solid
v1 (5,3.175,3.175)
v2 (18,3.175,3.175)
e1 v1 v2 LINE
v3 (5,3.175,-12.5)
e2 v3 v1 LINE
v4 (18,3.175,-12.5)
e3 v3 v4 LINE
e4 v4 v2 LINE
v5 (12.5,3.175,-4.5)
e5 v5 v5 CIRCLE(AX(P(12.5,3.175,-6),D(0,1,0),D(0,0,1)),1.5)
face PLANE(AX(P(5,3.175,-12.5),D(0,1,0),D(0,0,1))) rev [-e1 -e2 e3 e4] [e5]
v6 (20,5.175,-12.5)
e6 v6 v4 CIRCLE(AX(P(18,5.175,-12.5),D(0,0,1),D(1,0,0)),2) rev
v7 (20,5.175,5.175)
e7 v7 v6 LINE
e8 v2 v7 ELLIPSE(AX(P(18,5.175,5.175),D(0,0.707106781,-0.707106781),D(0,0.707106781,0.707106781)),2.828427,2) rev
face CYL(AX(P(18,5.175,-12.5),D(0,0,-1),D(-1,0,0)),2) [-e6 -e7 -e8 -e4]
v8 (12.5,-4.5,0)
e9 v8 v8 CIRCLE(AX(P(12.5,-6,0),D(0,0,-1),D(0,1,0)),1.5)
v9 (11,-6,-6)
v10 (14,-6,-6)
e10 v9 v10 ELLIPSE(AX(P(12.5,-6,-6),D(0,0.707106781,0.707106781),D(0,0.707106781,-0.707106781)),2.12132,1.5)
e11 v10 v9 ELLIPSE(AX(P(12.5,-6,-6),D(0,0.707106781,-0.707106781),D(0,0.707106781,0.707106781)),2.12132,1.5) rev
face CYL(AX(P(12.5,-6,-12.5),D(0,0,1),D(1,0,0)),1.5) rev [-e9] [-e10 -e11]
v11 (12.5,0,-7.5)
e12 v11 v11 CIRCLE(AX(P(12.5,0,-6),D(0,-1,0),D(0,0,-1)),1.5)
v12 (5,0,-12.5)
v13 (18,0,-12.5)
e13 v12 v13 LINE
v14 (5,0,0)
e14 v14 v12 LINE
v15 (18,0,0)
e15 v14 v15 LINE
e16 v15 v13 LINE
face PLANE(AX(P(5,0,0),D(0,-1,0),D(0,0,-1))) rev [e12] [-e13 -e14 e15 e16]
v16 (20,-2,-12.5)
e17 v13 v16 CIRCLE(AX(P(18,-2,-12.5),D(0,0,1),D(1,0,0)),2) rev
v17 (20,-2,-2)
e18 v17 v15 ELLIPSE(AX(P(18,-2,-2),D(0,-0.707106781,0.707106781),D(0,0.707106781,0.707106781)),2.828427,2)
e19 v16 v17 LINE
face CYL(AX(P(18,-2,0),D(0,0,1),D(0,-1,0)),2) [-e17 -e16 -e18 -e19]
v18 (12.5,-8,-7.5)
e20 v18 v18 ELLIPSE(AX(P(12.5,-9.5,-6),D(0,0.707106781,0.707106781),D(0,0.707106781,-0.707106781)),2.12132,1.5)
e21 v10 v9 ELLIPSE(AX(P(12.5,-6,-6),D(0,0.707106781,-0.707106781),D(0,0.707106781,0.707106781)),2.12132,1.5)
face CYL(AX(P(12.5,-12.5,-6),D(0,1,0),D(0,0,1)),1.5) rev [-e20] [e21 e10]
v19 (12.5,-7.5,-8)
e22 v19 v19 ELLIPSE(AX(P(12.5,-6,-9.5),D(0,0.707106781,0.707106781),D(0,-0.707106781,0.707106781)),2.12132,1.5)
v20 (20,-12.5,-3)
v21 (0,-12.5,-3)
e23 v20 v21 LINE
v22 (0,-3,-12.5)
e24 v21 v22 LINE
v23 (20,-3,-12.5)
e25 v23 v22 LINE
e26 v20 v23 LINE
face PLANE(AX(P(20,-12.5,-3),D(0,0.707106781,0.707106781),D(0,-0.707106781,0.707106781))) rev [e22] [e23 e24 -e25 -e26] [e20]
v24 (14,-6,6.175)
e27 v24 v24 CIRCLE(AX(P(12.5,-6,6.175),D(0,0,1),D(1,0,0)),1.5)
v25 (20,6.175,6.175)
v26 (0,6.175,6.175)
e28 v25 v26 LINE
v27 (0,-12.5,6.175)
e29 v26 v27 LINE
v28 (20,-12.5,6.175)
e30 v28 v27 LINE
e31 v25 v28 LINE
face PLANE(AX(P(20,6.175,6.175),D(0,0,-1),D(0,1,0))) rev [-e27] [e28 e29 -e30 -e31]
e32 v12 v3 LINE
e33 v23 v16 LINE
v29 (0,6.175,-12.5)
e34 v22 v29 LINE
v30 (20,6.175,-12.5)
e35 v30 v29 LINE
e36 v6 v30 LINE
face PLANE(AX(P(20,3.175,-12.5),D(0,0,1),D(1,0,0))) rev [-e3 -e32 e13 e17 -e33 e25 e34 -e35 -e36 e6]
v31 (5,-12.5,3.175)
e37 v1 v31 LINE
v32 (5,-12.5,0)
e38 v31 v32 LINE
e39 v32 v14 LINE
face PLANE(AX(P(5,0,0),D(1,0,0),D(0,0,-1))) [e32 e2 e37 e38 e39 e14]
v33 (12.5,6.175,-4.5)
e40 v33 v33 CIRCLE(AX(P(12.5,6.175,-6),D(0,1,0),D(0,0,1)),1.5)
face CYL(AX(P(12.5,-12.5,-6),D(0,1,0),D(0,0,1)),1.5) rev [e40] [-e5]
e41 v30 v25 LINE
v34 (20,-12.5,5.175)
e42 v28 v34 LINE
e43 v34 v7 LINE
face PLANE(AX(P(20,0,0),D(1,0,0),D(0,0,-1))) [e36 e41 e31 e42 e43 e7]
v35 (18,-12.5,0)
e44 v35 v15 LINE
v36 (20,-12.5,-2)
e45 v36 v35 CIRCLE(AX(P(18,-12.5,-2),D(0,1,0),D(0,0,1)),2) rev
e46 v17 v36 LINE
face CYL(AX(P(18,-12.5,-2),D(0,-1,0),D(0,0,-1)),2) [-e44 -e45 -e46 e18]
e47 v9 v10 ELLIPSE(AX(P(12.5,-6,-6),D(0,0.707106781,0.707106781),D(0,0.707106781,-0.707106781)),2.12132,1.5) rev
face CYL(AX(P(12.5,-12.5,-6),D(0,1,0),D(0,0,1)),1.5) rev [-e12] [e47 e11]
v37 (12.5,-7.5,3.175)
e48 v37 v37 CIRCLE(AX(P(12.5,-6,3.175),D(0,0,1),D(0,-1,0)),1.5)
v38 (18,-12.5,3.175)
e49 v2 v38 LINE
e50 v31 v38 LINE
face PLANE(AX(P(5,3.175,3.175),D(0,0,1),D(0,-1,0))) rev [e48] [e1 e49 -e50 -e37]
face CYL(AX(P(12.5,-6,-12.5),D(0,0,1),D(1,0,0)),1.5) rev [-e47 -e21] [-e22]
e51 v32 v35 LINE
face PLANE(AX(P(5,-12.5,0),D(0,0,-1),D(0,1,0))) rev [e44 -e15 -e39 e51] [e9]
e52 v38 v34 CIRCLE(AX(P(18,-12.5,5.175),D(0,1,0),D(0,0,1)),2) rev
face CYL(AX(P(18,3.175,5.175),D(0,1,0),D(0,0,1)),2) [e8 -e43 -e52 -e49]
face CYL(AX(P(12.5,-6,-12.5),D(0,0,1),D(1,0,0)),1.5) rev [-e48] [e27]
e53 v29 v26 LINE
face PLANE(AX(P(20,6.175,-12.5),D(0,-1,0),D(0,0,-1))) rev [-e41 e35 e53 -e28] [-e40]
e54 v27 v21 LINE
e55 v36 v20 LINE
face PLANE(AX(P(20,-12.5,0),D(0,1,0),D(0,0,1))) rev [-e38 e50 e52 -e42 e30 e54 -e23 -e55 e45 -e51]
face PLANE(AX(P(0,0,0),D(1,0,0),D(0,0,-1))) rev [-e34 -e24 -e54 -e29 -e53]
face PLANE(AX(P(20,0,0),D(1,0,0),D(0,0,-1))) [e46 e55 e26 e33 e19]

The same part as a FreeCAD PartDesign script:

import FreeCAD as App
import Part
import Sketcher
from FreeCAD import Vector
Q = App.Units.Quantity


def edges_at(feature, points):
    """Names of the edges that pass closest to the given points."""
    edges = feature.Shape.Edges
    near = lambda p: min(range(len(edges)), key=lambda i: edges[i].distToShape(Part.Vertex(*p))[0])
    return sorted({f"Edge{near(p) + 1}" for p in points})

doc = App.newDocument("Part")
body = doc.addObject("PartDesign::Body", "Body")

sketch1 = body.newObject("Sketcher::SketchObject", "Sketch")
sketch1.AttachmentSupport = (doc.getObject("YZ_Plane"), [""])
sketch1.MapMode = "FlatFace"
sketch1.addGeometry(Part.LineSegment(Vector(-12, 6, 0), Vector(-12, -3, 0)), False)
sketch1.addGeometry(Part.LineSegment(Vector(-12, -3, 0), Vector(-3, -12, 0)), False)
sketch1.addGeometry(Part.LineSegment(Vector(-3, -12, 0), Vector(6, -12, 0)), False)
sketch1.addGeometry(Part.LineSegment(Vector(6, -12, 0), Vector(6, 6, 0)), False)
sketch1.addGeometry(Part.LineSegment(Vector(6, 6, 0), Vector(-12, 6, 0)), False)
sketch1.addConstraint(Sketcher.Constraint("Coincident", 0, 2, 1, 1))
sketch1.addConstraint(Sketcher.Constraint("Coincident", 1, 2, 2, 1))
sketch1.addConstraint(Sketcher.Constraint("Coincident", 2, 2, 3, 1))
sketch1.addConstraint(Sketcher.Constraint("Coincident", 3, 2, 4, 1))
sketch1.addConstraint(Sketcher.Constraint("Coincident", 4, 2, 0, 1))
sketch1.addConstraint(Sketcher.Constraint("Vertical", 0))
sketch1.addConstraint(Sketcher.Constraint("Horizontal", 2))
sketch1.addConstraint(Sketcher.Constraint("Vertical", 3))
sketch1.addConstraint(Sketcher.Constraint("Horizontal", 4))
sketch1.addConstraint(Sketcher.Constraint("Equal", 2, 0))
sketch1.addConstraint(Sketcher.Constraint("Equal", 4, 3))
sketch1.addConstraint(Sketcher.Constraint("DistanceY", 0, 2, -1, 1, Q("3 mm")))
sketch1.addConstraint(Sketcher.Constraint("DistanceX", 1, 2, -1, 1, Q("3 mm")))
sketch1.addConstraint(Sketcher.Constraint("DistanceX", 0, 2, -1, 1, Q("12.5 mm")))
sketch1.addConstraint(Sketcher.Constraint("DistanceX", 2, 1, 2, 2, Q("9.175 mm")))
pad1 = body.newObject("PartDesign::Pad", "Pad")
pad1.Profile = sketch1
pad1.Length = 20

sketch2 = body.newObject("Sketcher::SketchObject", "Sketch001")
sketch2.AttachmentSupport = (doc.getObject("YZ_Plane"), [""])
sketch2.MapMode = "FlatFace"
sketch2.AttachmentOffset = App.Placement(Vector(0, 0, 20), App.Rotation())
sketch2.addGeometry(Part.LineSegment(Vector(-12.5, 3.2, 0), Vector(-12.5, 0, 0)), False)
sketch2.addGeometry(Part.LineSegment(Vector(-12.5, 0, 0), Vector(0, 0, 0)), False)
sketch2.addGeometry(Part.LineSegment(Vector(0, 0, 0), Vector(0, -12.5, 0)), False)
sketch2.addGeometry(Part.LineSegment(Vector(0, -12.5, 0), Vector(3.2, -12.5, 0)), False)
sketch2.addGeometry(Part.LineSegment(Vector(3.2, -12.5, 0), Vector(3.2, 3.2, 0)), False)
sketch2.addGeometry(Part.LineSegment(Vector(3.2, 3.2, 0), Vector(-12.5, 3.2, 0)), False)
sketch2.addConstraint(Sketcher.Constraint("Coincident", 0, 2, 1, 1))
sketch2.addConstraint(Sketcher.Constraint("Coincident", 1, 2, 2, 1))
sketch2.addConstraint(Sketcher.Constraint("Coincident", 2, 2, 3, 1))
sketch2.addConstraint(Sketcher.Constraint("Coincident", 3, 2, 4, 1))
sketch2.addConstraint(Sketcher.Constraint("Coincident", 4, 2, 5, 1))
sketch2.addConstraint(Sketcher.Constraint("Coincident", 5, 2, 0, 1))
sketch2.addConstraint(Sketcher.Constraint("Vertical", 0))
sketch2.addConstraint(Sketcher.Constraint("Horizontal", 1))
sketch2.addConstraint(Sketcher.Constraint("Vertical", 2))
sketch2.addConstraint(Sketcher.Constraint("Horizontal", 3))
sketch2.addConstraint(Sketcher.Constraint("Vertical", 4))
sketch2.addConstraint(Sketcher.Constraint("Horizontal", 5))
sketch2.addConstraint(Sketcher.Constraint("Coincident", 1, 2, -1, 1))
sketch2.addConstraint(Sketcher.Constraint("Equal", 3, 0))
sketch2.addConstraint(Sketcher.Constraint("Equal", 1, 2))
sketch2.addConstraint(Sketcher.Constraint("DistanceX", 1, 1, 1, 2, Q("12.5 mm")))
sketch2.addConstraint(Sketcher.Constraint("DistanceX", 3, 1, 3, 2, Q("3.175 mm")))
pocket1 = body.newObject("PartDesign::Pocket", "Pocket")
pocket1.Profile = sketch2
pocket1.Length = 15
doc.recompute()

fillet = body.newObject("PartDesign::Fillet", "Fillet")
fillet.Base = (pocket1, edges_at(pocket1, [
    (20, -4.662, 3.175),
    (20, -6.25, 0),
    (20, 0, -6.25),
    (20, 3.175, -4.662),
]))
fillet.Radius = 2

sketch3 = body.newObject("Sketcher::SketchObject", "Sketch002")
sketch3.AttachmentSupport = (doc.getObject("XZ_Plane"), [""])
sketch3.MapMode = "FlatFace"
sketch3.AttachmentOffset = App.Placement(Vector(0, 0, -6.175), App.Rotation())
sketch3.addGeometry(Part.Circle(Vector(12.5, -6, 0), Vector(0, 0, 1), 1.5), False)
sketch3.addConstraint(Sketcher.Constraint("Diameter", 0, Q("3 mm")))
sketch3.addConstraint(Sketcher.Constraint("DistanceY", 0, 3, -1, 1, Q("6 mm")))
sketch3.addConstraint(Sketcher.Constraint("DistanceX", -1, 1, 0, 3, Q("12.5 mm")))
pocket2 = body.newObject("PartDesign::Pocket", "Pocket001")
pocket2.Profile = sketch3
pocket2.Type = "ThroughAll"
pocket2.Reversed = True

sketch4 = body.newObject("Sketcher::SketchObject", "Sketch003")
sketch4.AttachmentSupport = (doc.getObject("XY_Plane"), [""])
sketch4.MapMode = "FlatFace"
sketch4.AttachmentOffset = App.Placement(Vector(0, 0, 6.175), App.Rotation())
sketch4.addGeometry(Part.Circle(Vector(12.5, -6, 0), Vector(0, 0, 1), 1.5), False)
sketch4.addConstraint(Sketcher.Constraint("Diameter", 0, Q("3 mm")))
sketch4.addConstraint(Sketcher.Constraint("DistanceY", 0, 3, -1, 1, Q("6 mm")))
sketch4.addConstraint(Sketcher.Constraint("DistanceX", -1, 1, 0, 3, Q("12.5 mm")))
pocket3 = body.newObject("PartDesign::Pocket", "Pocket002")
pocket3.Profile = sketch4
pocket3.Type = "ThroughAll"

doc.recompute()
